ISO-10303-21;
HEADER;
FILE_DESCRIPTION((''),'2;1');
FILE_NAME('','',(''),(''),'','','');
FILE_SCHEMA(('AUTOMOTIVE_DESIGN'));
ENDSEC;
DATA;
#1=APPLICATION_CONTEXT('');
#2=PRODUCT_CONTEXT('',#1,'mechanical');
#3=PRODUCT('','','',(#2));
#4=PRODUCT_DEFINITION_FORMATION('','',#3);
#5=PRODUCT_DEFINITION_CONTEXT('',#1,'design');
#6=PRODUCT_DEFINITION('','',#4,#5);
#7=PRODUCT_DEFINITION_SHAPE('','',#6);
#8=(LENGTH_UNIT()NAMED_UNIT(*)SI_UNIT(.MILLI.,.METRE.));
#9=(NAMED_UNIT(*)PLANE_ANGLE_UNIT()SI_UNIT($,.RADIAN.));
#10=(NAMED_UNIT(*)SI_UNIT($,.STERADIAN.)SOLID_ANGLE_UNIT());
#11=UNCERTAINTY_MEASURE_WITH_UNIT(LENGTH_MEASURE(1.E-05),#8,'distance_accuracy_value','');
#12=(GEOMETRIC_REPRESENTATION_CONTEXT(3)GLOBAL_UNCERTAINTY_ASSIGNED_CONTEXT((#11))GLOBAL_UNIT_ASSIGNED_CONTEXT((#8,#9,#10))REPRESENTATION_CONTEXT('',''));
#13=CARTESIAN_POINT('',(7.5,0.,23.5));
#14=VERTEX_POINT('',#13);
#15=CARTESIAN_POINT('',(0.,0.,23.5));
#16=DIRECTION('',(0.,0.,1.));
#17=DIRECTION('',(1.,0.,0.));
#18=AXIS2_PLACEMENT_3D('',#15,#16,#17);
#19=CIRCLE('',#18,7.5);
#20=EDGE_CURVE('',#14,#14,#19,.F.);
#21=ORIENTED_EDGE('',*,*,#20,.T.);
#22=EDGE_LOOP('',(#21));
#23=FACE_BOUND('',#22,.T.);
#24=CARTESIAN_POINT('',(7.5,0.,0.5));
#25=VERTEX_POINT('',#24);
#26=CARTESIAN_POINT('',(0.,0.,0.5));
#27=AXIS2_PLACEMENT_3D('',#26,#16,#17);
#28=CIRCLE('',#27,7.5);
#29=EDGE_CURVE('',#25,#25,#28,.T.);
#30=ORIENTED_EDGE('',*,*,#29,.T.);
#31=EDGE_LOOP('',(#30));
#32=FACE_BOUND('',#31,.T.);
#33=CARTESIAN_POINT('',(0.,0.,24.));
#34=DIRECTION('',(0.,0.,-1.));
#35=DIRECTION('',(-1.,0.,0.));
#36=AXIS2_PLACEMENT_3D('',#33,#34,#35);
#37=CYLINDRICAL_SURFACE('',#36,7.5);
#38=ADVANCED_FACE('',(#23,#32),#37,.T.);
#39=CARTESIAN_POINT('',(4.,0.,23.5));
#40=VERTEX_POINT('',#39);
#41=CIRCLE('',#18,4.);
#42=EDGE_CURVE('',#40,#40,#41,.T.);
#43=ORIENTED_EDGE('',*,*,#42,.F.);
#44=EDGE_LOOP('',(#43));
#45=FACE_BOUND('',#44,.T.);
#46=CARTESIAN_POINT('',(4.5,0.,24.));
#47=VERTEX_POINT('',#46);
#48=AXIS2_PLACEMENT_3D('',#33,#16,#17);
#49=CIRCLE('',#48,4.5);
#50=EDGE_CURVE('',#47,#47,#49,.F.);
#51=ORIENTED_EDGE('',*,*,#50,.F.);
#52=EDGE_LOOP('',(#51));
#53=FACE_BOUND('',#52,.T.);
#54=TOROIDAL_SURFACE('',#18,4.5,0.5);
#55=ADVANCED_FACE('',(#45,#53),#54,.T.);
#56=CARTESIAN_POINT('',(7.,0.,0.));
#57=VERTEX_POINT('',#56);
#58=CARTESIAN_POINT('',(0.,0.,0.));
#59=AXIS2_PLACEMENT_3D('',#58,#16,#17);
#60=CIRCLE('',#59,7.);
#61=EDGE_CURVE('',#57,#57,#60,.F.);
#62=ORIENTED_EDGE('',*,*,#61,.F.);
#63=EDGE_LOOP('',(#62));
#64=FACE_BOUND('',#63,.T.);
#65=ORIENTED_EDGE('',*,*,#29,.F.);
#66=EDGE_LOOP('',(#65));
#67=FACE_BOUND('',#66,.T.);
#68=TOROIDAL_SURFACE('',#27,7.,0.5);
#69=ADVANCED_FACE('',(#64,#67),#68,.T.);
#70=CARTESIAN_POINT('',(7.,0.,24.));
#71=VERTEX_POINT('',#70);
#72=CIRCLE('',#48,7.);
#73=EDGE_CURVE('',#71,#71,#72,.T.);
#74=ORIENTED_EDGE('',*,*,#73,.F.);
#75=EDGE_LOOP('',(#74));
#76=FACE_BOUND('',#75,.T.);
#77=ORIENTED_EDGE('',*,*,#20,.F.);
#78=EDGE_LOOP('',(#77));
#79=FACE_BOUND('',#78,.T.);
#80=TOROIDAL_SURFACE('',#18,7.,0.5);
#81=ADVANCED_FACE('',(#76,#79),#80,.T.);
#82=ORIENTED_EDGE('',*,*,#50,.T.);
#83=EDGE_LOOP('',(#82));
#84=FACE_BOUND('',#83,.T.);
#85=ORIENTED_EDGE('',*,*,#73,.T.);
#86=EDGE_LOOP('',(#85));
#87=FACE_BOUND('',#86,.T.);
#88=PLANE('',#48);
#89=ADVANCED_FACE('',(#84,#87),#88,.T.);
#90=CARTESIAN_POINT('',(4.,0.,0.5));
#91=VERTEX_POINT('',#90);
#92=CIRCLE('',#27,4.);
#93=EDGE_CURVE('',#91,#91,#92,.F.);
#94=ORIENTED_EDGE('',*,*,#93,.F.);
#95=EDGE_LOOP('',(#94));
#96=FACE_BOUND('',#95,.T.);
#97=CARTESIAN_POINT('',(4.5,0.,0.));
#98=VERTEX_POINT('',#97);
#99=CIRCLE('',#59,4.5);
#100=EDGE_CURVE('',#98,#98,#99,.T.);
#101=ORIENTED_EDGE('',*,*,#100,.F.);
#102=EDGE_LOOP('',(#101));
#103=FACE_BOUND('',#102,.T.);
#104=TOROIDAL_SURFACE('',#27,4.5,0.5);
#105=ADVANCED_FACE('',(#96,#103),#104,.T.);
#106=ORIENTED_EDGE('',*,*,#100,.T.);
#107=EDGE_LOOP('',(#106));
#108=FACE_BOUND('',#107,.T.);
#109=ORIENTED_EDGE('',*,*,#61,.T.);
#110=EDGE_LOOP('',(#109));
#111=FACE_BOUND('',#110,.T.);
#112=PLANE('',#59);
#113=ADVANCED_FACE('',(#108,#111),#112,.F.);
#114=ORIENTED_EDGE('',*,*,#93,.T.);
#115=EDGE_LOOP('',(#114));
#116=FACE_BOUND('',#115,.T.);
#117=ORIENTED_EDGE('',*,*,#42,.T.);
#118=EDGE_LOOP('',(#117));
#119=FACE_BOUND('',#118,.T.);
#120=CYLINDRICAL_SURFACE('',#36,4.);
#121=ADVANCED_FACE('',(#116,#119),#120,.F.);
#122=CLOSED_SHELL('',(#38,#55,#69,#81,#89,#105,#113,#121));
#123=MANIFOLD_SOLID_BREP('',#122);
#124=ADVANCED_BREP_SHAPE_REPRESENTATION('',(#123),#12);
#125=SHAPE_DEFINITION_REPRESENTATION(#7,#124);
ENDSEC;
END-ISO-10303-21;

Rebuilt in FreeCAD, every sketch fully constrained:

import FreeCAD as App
import Part
import Sketcher

V = App.Vector
Q = App.Units.Quantity


def edges_at(feature, points):
    """Names of the edges that pass closest to the given points."""
    edges = feature.Shape.Edges
    near = lambda p: min(range(len(edges)), key=lambda i: edges[i].distToShape(Part.Vertex(*p))[0])
    return sorted({f"Edge{near(p) + 1}" for p in points})

doc = App.newDocument("Part")
body = doc.addObject("PartDesign::Body", "Body")

# Sketch on XY plane
sketch1 = body.newObject("Sketcher::SketchObject", "Sketch")
sketch1.AttachmentSupport = (doc.getObject("XY_Plane"), [""])
sketch1.MapMode = "FlatFace"
sketch1.addGeometry(Part.Circle(V(0, 0, 0), V(0, 0, 1), 7.5), False)
sketch1.addGeometry(Part.Circle(V(0, 0, 0), V(0, 0, 1), 4), False)
sketch1.addConstraint(Sketcher.Constraint("Coincident", 0, 3, -1, 1))
sketch1.addConstraint(Sketcher.Constraint("Coincident", 1, 3, -1, 1))
sketch1.addConstraint(Sketcher.Constraint("Diameter", 0, Q("15 mm")))
sketch1.addConstraint(Sketcher.Constraint("Diameter", 1, Q("8 mm")))
pad1 = body.newObject("PartDesign::Pad", "Pad")
pad1.Profile = sketch1
pad1.Length = 24
doc.recompute()

fillet = body.newObject("PartDesign::Fillet", "Fillet")
fillet.Base = (pad1, edges_at(pad1, [
    (-7.5, 0, 0),
    (-7.5, 0, 24),
    (-4, 0, 0),
    (-4, 0, 24),
]))
fillet.Radius = 0.5

doc.recompute()
